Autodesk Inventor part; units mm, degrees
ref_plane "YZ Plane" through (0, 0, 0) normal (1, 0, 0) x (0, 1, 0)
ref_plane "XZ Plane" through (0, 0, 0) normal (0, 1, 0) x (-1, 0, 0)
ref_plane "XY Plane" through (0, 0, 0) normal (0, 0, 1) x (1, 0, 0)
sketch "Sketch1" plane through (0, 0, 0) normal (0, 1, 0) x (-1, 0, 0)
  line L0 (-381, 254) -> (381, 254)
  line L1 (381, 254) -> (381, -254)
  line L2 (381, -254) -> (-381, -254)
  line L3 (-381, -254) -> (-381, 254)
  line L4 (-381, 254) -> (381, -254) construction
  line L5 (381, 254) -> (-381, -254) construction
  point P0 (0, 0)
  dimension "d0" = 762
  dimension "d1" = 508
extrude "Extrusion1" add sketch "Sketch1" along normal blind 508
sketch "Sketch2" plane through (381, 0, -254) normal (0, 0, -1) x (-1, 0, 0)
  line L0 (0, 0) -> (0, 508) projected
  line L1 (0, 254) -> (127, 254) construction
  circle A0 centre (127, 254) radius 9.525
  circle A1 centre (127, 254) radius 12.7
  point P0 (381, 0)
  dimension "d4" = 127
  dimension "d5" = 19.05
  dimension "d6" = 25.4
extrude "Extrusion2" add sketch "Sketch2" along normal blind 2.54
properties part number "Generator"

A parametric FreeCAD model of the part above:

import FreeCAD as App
import Part
import Sketcher
Q = App.Units.Quantity


def add_polygon(sketch, points):
    """Adds a closed chain of lines whose ends are joined by coincident constraints."""
    first, n = sketch.GeometryCount, len(points)
    for a, b in zip(points, points[1:] + points[:1]):
        sketch.addGeometry(Part.LineSegment(App.Vector(*a, 0), App.Vector(*b, 0)), False)
    for i in range(n):
        sketch.addConstraint(Sketcher.Constraint("Coincident", first + i, 2, first + (i + 1) % n, 1))

doc = App.newDocument("Part")
body = doc.addObject("PartDesign::Body", "Body")

# Sketch on XZ plane
sketch1 = body.newObject("Sketcher::SketchObject", "Sketch")
sketch1.AttachmentSupport = (doc.getObject("XZ_Plane"), [""])
sketch1.MapMode = "FlatFace"
add_polygon(sketch1, [(-381, 254), (381, 254), (381, -254), (-381, -254)])  # lines 0-3
sketch1.addConstraint([
    Sketcher.Constraint("Horizontal", 0),
    Sketcher.Constraint("Vertical", 1),
    Sketcher.Constraint("Horizontal", 2),
    Sketcher.Constraint("Vertical", 3),
    Sketcher.Constraint("Symmetric", 0, 2, 2, 2, -1, 1),
    Sketcher.Constraint("DistanceX", 0, 1, 0, 2, Q("30 in")),
    Sketcher.Constraint("DistanceY", 1, 2, 1, 1, Q("20 in")),
])
pad1 = body.newObject("PartDesign::Pad", "Pad")
pad1.Profile = sketch1
pad1.Length = Q("20 in")
pad1.Reversed = True

# Sketch on XY plane
sketch2 = body.newObject("Sketcher::SketchObject", "Sketch001")
sketch2.AttachmentSupport = (doc.getObject("XY_Plane"), [""])
sketch2.MapMode = "FlatFace"
sketch2.AttachmentOffset = App.Placement(App.Vector(0, 0, -10 * 25.4), App.Rotation())
sketch2.addGeometry([
    Part.Circle(App.Vector(254, 254, 0), App.Vector(0, 0, 1), 12.7),
    Part.Circle(App.Vector(254, 254, 0), App.Vector(0, 0, 1), 9.525),
], False)
sketch2.addConstraint([
    Sketcher.Constraint("Coincident", 1, 3, 0, 3),
    Sketcher.Constraint("Diameter", 0, Q("1 in")),
    Sketcher.Constraint("Diameter", 1, Q("0.75 in")),
    Sketcher.Constraint("DistanceX", -1, 1, 0, 3, Q("10 in")),
    Sketcher.Constraint("DistanceY", -1, 1, 0, 3, Q("10 in")),
])
pad2 = body.newObject("PartDesign::Pad", "Pad001")
pad2.Profile = sketch2
pad2.Length = Q("0.1 in")
pad2.Reversed = True

doc.recompute()
